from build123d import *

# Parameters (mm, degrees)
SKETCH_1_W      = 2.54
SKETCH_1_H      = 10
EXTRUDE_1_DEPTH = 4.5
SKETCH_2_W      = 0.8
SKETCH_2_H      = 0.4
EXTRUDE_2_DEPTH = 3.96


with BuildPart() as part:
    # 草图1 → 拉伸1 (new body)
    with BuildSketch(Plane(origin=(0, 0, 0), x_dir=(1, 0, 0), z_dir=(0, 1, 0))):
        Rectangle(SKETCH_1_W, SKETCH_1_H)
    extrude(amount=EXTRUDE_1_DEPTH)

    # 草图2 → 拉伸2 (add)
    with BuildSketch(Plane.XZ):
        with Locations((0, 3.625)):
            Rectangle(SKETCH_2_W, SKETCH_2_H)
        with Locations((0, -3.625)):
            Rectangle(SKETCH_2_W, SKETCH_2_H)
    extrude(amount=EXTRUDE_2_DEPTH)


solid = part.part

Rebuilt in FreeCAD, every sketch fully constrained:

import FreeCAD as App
import Part
import Sketcher

doc = App.newDocument("Part")
body = doc.addObject("PartDesign::Body", "Body")

sketch1 = body.newObject("Sketcher::SketchObject", "Sketch")
sketch1.AttachmentSupport = (doc.getObject("XZ_Plane"), [""])
sketch1.MapMode = "FlatFace"
sketch1.addGeometry(Part.LineSegment(App.Vector(-1.27, -5, 0), App.Vector(-1.27, 5, 0)), False)
sketch1.addGeometry(Part.LineSegment(App.Vector(-1.27, 5, 0), App.Vector(1.27, 5, 0)), False)
sketch1.addGeometry(Part.LineSegment(App.Vector(1.27, 5, 0), App.Vector(1.27, -5, 0)), False)
sketch1.addGeometry(Part.LineSegment(App.Vector(1.27, -5, 0), App.Vector(-1.27, -5, 0)), False)
sketch1.addConstraint(Sketcher.Constraint("Coincident", 0, 2, 1, 1))
sketch1.addConstraint(Sketcher.Constraint("Coincident", 1, 2, 2, 1))
sketch1.addConstraint(Sketcher.Constraint("Coincident", 2, 2, 3, 1))
sketch1.addConstraint(Sketcher.Constraint("Coincident", 3, 2, 0, 1))
sketch1.addConstraint(Sketcher.Constraint("Vertical", 0))
sketch1.addConstraint(Sketcher.Constraint("Horizontal", 1))
sketch1.addConstraint(Sketcher.Constraint("Vertical", 2))
sketch1.addConstraint(Sketcher.Constraint("Horizontal", 3))
sketch1.addConstraint(Sketcher.Constraint("Symmetric", 0, 2, 2, 2, -1, 1))
sketch1.addConstraint(Sketcher.Constraint("DistanceY", 0, 1, 0, 2, 10.0))
sketch1.addConstraint(Sketcher.Constraint("DistanceX", 1, 1, 1, 2, 2.54))
pad1 = body.newObject("PartDesign::Pad", "Pad")
pad1.Profile = sketch1
pad1.Length = 4.5
pad1.Reversed = True

sketch2 = body.newObject("Sketcher::SketchObject", "Sketch001")
sketch2.AttachmentSupport = (doc.getObject("XZ_Plane"), [""])
sketch2.MapMode = "FlatFace"
sketch2.addGeometry(Part.LineSegment(App.Vector(-0.4, 3.825, 0), App.Vector(-0.4, 3.425, 0)), False)
sketch2.addGeometry(Part.LineSegment(App.Vector(-0.4, 3.425, 0), App.Vector(0.4, 3.425, 0)), False)
sketch2.addGeometry(Part.LineSegment(App.Vector(0.4, 3.425, 0), App.Vector(0.4, 3.825, 0)), False)
sketch2.addGeometry(Part.LineSegment(App.Vector(0.4, 3.825, 0), App.Vector(-0.4, 3.825, 0)), False)
sketch2.addGeometry(Part.LineSegment(App.Vector(-0.4, -3.425, 0), App.Vector(-0.4, -3.825, 0)), False)
sketch2.addGeometry(Part.LineSegment(App.Vector(-0.4, -3.825, 0), App.Vector(0.4, -3.825, 0)), False)
sketch2.addGeometry(Part.LineSegment(App.Vector(0.4, -3.825, 0), App.Vector(0.4, -3.425, 0)), False)
sketch2.addGeometry(Part.LineSegment(App.Vector(0.4, -3.425, 0), App.Vector(-0.4, -3.425, 0)), False)
sketch2.addConstraint(Sketcher.Constraint("Coincident", 0, 2, 1, 1))
sketch2.addConstraint(Sketcher.Constraint("Coincident", 1, 2, 2, 1))
sketch2.addConstraint(Sketcher.Constraint("Coincident", 2, 2, 3, 1))
sketch2.addConstraint(Sketcher.Constraint("Coincident", 3, 2, 0, 1))
sketch2.addConstraint(Sketcher.Constraint("Coincident", 4, 2, 5, 1))
sketch2.addConstraint(Sketcher.Constraint("Coincident", 5, 2, 6, 1))
sketch2.addConstraint(Sketcher.Constraint("Coincident", 6, 2, 7, 1))
sketch2.addConstraint(Sketcher.Constraint("Coincident", 7, 2, 4, 1))
sketch2.addConstraint(Sketcher.Constraint("Vertical", 0))
sketch2.addConstraint(Sketcher.Constraint("Horizontal", 1))
sketch2.addConstraint(Sketcher.Constraint("Vertical", 2))
sketch2.addConstraint(Sketcher.Constraint("Horizontal", 3))
sketch2.addConstraint(Sketcher.Constraint("Vertical", 4))
sketch2.addConstraint(Sketcher.Constraint("Horizontal", 5))
sketch2.addConstraint(Sketcher.Constraint("Vertical", 6))
sketch2.addConstraint(Sketcher.Constraint("Horizontal", 7))
sketch2.addConstraint(Sketcher.Constraint("Symmetric", 2, 2, 4, 2, -1, 1))
sketch2.addConstraint(Sketcher.Constraint("Symmetric", 0, 2, 6, 2, -1, 1))
sketch2.addConstraint(Sketcher.Constraint("Vertical", 3, 2, 4, 2))
sketch2.addConstraint(Sketcher.Constraint("DistanceX", 1, 1, 1, 2, 0.8))
sketch2.addConstraint(Sketcher.Constraint("DistanceY", 0, 2, 0, 1, 0.4))
sketch2.addConstraint(Sketcher.Constraint("DistanceY", 4, 2, 0, 2, 7.25))
pad2 = body.newObject("PartDesign::Pad", "Pad001")
pad2.Profile = sketch2
pad2.Length = 3.96

doc.recompute()
